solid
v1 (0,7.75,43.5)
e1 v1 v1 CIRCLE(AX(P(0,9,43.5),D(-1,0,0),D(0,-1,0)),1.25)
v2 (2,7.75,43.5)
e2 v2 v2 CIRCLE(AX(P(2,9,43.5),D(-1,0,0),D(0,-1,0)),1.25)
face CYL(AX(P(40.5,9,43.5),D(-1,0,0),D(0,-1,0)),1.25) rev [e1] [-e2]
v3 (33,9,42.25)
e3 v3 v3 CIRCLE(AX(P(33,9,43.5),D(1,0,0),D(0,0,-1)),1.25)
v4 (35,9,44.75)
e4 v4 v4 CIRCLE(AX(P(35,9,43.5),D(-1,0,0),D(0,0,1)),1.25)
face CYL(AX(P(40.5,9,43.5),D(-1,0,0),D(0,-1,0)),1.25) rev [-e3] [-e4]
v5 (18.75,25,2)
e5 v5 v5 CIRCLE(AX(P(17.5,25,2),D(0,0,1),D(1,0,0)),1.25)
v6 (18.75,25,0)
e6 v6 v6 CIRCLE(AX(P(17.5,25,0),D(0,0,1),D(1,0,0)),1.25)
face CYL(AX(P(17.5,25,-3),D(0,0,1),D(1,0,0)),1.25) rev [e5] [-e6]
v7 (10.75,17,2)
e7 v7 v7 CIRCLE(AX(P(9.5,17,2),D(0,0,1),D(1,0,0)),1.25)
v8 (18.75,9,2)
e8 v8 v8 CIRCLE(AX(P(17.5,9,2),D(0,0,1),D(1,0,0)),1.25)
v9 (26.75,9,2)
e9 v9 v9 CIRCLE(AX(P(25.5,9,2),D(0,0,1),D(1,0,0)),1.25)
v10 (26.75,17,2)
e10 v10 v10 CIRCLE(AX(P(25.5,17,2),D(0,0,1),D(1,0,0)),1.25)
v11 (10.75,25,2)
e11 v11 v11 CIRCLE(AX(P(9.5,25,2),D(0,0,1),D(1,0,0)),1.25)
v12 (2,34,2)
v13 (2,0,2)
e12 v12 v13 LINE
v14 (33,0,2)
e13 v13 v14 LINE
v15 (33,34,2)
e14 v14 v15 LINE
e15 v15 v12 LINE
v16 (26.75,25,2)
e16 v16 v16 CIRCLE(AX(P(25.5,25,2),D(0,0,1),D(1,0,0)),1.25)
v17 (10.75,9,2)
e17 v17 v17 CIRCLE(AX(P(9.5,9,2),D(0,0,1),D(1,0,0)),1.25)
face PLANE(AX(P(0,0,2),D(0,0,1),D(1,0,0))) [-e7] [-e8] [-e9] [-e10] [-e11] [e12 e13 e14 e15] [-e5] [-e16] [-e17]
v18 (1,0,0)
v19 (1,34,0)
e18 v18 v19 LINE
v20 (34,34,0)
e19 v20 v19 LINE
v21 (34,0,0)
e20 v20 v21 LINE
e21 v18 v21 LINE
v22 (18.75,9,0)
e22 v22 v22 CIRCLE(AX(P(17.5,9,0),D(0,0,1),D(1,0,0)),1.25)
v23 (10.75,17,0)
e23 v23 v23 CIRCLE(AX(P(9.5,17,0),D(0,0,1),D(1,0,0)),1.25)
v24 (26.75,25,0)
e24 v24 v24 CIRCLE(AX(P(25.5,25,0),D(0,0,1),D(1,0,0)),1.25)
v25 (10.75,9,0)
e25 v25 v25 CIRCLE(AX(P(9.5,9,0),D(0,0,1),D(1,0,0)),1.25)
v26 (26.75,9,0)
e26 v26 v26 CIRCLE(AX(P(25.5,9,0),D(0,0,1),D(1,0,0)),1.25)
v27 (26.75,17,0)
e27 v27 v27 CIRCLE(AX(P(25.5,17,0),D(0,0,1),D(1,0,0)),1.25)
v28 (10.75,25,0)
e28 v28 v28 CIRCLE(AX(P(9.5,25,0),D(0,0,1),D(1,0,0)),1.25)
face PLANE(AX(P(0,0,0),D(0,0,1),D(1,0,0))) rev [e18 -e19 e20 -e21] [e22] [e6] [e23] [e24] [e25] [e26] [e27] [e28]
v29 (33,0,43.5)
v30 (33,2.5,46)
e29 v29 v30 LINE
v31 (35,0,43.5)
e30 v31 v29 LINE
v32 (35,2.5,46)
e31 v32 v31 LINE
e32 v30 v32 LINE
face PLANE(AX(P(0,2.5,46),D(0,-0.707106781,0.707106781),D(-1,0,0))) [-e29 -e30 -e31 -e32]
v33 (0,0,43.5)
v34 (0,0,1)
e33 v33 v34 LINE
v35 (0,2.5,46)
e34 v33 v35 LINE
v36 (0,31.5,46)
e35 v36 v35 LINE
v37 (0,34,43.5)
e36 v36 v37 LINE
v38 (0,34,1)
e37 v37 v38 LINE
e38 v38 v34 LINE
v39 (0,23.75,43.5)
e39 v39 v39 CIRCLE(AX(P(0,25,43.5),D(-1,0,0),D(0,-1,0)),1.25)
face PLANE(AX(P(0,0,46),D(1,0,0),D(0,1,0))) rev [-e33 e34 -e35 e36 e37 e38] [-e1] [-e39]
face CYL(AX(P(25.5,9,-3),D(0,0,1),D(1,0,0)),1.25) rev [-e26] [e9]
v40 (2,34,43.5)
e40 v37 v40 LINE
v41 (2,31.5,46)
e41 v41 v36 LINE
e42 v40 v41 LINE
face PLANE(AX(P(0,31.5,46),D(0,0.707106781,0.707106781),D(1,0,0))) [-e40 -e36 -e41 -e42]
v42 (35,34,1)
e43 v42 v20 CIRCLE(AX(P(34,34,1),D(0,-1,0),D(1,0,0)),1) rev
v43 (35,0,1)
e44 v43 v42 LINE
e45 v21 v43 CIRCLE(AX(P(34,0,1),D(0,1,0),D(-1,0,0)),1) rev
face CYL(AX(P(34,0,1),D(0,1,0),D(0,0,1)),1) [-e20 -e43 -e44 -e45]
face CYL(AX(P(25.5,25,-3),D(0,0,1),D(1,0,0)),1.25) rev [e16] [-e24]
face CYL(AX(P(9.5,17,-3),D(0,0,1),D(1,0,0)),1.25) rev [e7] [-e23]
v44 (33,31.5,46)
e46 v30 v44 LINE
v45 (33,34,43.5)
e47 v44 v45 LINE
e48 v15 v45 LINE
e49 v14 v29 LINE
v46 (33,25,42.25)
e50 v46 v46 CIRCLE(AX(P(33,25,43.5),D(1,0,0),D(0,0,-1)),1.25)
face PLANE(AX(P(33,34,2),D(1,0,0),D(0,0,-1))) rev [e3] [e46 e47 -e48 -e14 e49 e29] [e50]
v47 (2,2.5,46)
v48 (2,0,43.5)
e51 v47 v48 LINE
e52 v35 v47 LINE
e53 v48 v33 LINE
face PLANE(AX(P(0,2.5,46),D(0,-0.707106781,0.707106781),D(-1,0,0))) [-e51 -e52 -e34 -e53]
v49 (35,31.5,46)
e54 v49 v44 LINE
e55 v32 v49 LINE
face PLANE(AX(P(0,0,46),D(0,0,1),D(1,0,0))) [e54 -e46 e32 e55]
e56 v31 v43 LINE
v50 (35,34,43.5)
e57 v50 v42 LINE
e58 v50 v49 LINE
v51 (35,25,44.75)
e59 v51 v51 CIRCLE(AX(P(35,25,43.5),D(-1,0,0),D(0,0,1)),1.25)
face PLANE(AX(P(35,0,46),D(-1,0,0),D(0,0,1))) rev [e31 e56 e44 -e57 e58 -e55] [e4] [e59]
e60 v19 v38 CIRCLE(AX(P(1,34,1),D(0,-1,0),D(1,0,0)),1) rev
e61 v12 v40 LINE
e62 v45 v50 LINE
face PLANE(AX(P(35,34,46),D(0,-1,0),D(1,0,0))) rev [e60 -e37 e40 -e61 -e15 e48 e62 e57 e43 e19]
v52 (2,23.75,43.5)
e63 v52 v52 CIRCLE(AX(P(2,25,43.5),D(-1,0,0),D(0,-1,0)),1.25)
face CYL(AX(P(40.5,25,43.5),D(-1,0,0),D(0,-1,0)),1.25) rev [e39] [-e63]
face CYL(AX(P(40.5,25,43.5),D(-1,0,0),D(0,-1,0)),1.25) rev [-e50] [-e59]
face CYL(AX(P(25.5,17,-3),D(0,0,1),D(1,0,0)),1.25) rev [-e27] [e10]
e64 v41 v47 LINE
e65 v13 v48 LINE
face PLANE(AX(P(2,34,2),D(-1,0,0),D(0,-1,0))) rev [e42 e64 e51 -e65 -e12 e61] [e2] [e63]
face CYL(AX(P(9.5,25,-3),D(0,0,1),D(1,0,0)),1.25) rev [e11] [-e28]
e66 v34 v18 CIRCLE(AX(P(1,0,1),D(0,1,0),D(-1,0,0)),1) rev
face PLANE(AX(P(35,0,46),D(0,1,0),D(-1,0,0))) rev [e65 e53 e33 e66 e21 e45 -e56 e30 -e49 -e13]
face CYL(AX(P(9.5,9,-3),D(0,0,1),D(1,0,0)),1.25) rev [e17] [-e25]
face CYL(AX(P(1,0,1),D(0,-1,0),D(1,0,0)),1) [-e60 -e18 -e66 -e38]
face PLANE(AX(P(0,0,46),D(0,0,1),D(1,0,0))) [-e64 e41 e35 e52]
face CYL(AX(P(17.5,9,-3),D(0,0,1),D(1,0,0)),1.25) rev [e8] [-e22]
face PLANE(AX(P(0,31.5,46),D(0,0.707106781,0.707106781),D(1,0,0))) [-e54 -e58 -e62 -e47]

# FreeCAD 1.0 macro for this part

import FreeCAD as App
import Part
import Sketcher


def edges_at(feature, points):
    """Names of the edges that pass closest to the given points."""
    edges = feature.Shape.Edges
    near = lambda p: min(range(len(edges)), key=lambda i: edges[i].distToShape(Part.Vertex(*p))[0])
    return sorted({f"Edge{near(p) + 1}" for p in points})

doc = App.newDocument("Part")
body = doc.addObject("PartDesign::Body", "Body")

sketch1 = doc.addObject("Sketcher::SketchObject", "Sketch")
body.addObject(sketch1)
sketch1.AttachmentSupport = (doc.XY_Plane, [""])
sketch1.MapMode = "FlatFace"
sketch1.addGeometry(Part.LineSegment(App.Vector(0, 34, 0), App.Vector(0, 0, 0)), False)
sketch1.addGeometry(Part.LineSegment(App.Vector(0, 0, 0), App.Vector(35, 0, 0)), False)
sketch1.addGeometry(Part.LineSegment(App.Vector(35, 0, 0), App.Vector(35, 34, 0)), False)
sketch1.addGeometry(Part.LineSegment(App.Vector(35, 34, 0), App.Vector(0, 34, 0)), False)
sketch1.addConstraint(Sketcher.Constraint("Coincident", 0, 2, 1, 1))
sketch1.addConstraint(Sketcher.Constraint("Coincident", 1, 2, 2, 1))
sketch1.addConstraint(Sketcher.Constraint("Coincident", 2, 2, 3, 1))
sketch1.addConstraint(Sketcher.Constraint("Coincident", 3, 2, 0, 1))
sketch1.addConstraint(Sketcher.Constraint("Vertical", 0))
sketch1.addConstraint(Sketcher.Constraint("Horizontal", 1))
sketch1.addConstraint(Sketcher.Constraint("Vertical", 2))
sketch1.addConstraint(Sketcher.Constraint("Horizontal", 3))
sketch1.addConstraint(Sketcher.Constraint("Coincident", 0, 2, -1, 1))
sketch1.addConstraint(Sketcher.Constraint("DistanceX", 1, 1, 1, 2, 35.0))
sketch1.addConstraint(Sketcher.Constraint("DistanceY", 0, 2, 0, 1, 34.0))
pad1 = doc.addObject("PartDesign::Pad", "Pad")
body.addObject(pad1)
pad1.Profile = sketch1
pad1.Length = 46

sketch2 = doc.addObject("Sketcher::SketchObject", "Sketch001")
body.addObject(sketch2)
sketch2.AttachmentSupport = (doc.XY_Plane, [""])
sketch2.MapMode = "FlatFace"
sketch2.AttachmentOffset = App.Placement(App.Vector(0, 0, 46), App.Rotation())
sketch2.addGeometry(Part.LineSegment(App.Vector(2, 34, 0), App.Vector(2, 0, 0)), False)
sketch2.addGeometry(Part.LineSegment(App.Vector(2, 0, 0), App.Vector(33, 0, 0)), False)
sketch2.addGeometry(Part.LineSegment(App.Vector(33, 0, 0), App.Vector(33, 34, 0)), False)
sketch2.addGeometry(Part.LineSegment(App.Vector(33, 34, 0), App.Vector(2, 34, 0)), False)
sketch2.addConstraint(Sketcher.Constraint("Coincident", 0, 2, 1, 1))
sketch2.addConstraint(Sketcher.Constraint("Coincident", 1, 2, 2, 1))
sketch2.addConstraint(Sketcher.Constraint("Coincident", 2, 2, 3, 1))
sketch2.addConstraint(Sketcher.Constraint("Coincident", 3, 2, 0, 1))
sketch2.addConstraint(Sketcher.Constraint("Vertical", 0))
sketch2.addConstraint(Sketcher.Constraint("Horizontal", 1))
sketch2.addConstraint(Sketcher.Constraint("Vertical", 2))
sketch2.addConstraint(Sketcher.Constraint("Horizontal", 3))
sketch2.addConstraint(Sketcher.Constraint("PointOnObject", 0, 2, -1))
sketch2.addConstraint(Sketcher.Constraint("DistanceX", 1, 1, 1, 2, 31.0))
sketch2.addConstraint(Sketcher.Constraint("DistanceY", 0, 2, 0, 1, 34.0))
sketch2.addConstraint(Sketcher.Constraint("DistanceX", -1, 1, 0, 2, 2.0))
pocket1 = doc.addObject("PartDesign::Pocket", "Pocket")
body.addObject(pocket1)
pocket1.Profile = sketch2
pocket1.Length = 44
doc.recompute()

fillet = doc.addObject("PartDesign::Fillet", "Fillet")
body.addObject(fillet)
fillet.Base = (pocket1, edges_at(pocket1, [(0, 17, 0), (35, 17, 0)]))
fillet.Radius = 1
doc.recompute()

chamfer = doc.addObject("PartDesign::Chamfer", "Chamfer")
body.addObject(chamfer)
chamfer.Base = (fillet, edges_at(fillet, [
    (1, 0, 46),
    (1, 34, 46),
    (34, 0, 46),
    (34, 34, 46),
]))
chamfer.Size = 2.5

sketch3 = doc.addObject("Sketcher::SketchObject", "Sketch002")
body.addObject(sketch3)
sketch3.AttachmentSupport = (doc.YZ_Plane, [""])
sketch3.MapMode = "FlatFace"
sketch3.addGeometry(Part.Circle(App.Vector(25, 43.5, 0), App.Vector(0, 0, 1), 1.2), False)
sketch3.addGeometry(Part.Circle(App.Vector(9, 43.5, 0), App.Vector(0, 0, 1), 1.2), False)
sketch3.addConstraint(Sketcher.Constraint("Equal", 0, 1))
sketch3.addConstraint(Sketcher.Constraint("Horizontal", 0, 3, 1, 3))
sketch3.addConstraint(Sketcher.Constraint("Diameter", 0, 2.5))
sketch3.addConstraint(Sketcher.Constraint("DistanceX", -1, 1, 0, 3, 25.0))
sketch3.addConstraint(Sketcher.Constraint("DistanceX", -1, 1, 1, 3, 9.0))
sketch3.addConstraint(Sketcher.Constraint("DistanceY", -1, 1, 0, 3, 43.5))
pocket2 = doc.addObject("PartDesign::Pocket", "Pocket001")
body.addObject(pocket2)
pocket2.Profile = sketch3
pocket2.Length = 40.5
pocket2.Reversed = True

sketch4 = doc.addObject("Sketcher::SketchObject", "Sketch003")
body.addObject(sketch4)
sketch4.AttachmentSupport = (doc.XY_Plane, [""])
sketch4.MapMode = "FlatFace"
sketch4.AttachmentOffset = App.Placement(App.Vector(0, 0, 2), App.Rotation())
sketch4.addGeometry(Part.Circle(App.Vector(9.5, 9, 0), App.Vector(0, 0, 1), 1.2), False)
sketch4.addGeometry(Part.Circle(App.Vector(17.5, 9, 0), App.Vector(0, 0, 1), 1.2), False)
sketch4.addGeometry(Part.Circle(App.Vector(25.5, 9, 0), App.Vector(0, 0, 1), 1.2), False)
sketch4.addGeometry(Part.Circle(App.Vector(25.5, 17, 0), App.Vector(0, 0, 1), 1.2), False)
sketch4.addGeometry(Part.Circle(App.Vector(17.5, 25, 0), App.Vector(0, 0, 1), 1.2), False)
sketch4.addGeometry(Part.Circle(App.Vector(25.5, 25, 0), App.Vector(0, 0, 1), 1.2), False)
sketch4.addGeometry(Part.Circle(App.Vector(9.5, 17, 0), App.Vector(0, 0, 1), 1.2), False)
sketch4.addGeometry(Part.Circle(App.Vector(9.5, 25, 0), App.Vector(0, 0, 1), 1.2), False)
sketch4.addConstraint(Sketcher.Constraint("Equal", 0, 1))
sketch4.addConstraint(Sketcher.Constraint("Equal", 1, 2))
sketch4.addConstraint(Sketcher.Constraint("Equal", 2, 3))
sketch4.addConstraint(Sketcher.Constraint("Equal", 3, 4))
sketch4.addConstraint(Sketcher.Constraint("Equal", 4, 5))
sketch4.addConstraint(Sketcher.Constraint("Equal", 5, 6))
sketch4.addConstraint(Sketcher.Constraint("Equal", 6, 7))
sketch4.addConstraint(Sketcher.Constraint("Horizontal", 0, 3, 1, 3))
sketch4.addConstraint(Sketcher.Constraint("Horizontal", 1, 3, 2, 3))
sketch4.addConstraint(Sketcher.Constraint("Horizontal", 4, 3, 5, 3))
sketch4.addConstraint(Sketcher.Constraint("Horizontal", 3, 3, 6, 3))
sketch4.addConstraint(Sketcher.Constraint("Horizontal", 5, 3, 7, 3))
sketch4.addConstraint(Sketcher.Constraint("Vertical", 2, 3, 3, 3))
sketch4.addConstraint(Sketcher.Constraint("Vertical", 1, 3, 4, 3))
sketch4.addConstraint(Sketcher.Constraint("Vertical", 3, 3, 5, 3))
sketch4.addConstraint(Sketcher.Constraint("Vertical", 0, 3, 6, 3))
sketch4.addConstraint(Sketcher.Constraint("Vertical", 6, 3, 7, 3))
sketch4.addConstraint(Sketcher.Constraint("Diameter", 0, 2.5))
sketch4.addConstraint(Sketcher.Constraint("DistanceY", -1, 1, 0, 3, 9.0))
sketch4.addConstraint(Sketcher.Constraint("DistanceY", -1, 1, 3, 3, 17.0))
sketch4.addConstraint(Sketcher.Constraint("DistanceY", -1, 1, 4, 3, 25.0))
sketch4.addConstraint(Sketcher.Constraint("DistanceX", 0, 3, 1, 3, 8.0))
sketch4.addConstraint(Sketcher.Constraint("DistanceX", 1, 3, 2, 3, 8.0))
sketch4.addConstraint(Sketcher.Constraint("DistanceX", -1, 1, 0, 3, 9.5))
pocket3 = doc.addObject("PartDesign::Pocket", "Pocket002")
body.addObject(pocket3)
pocket3.Profile = sketch4
pocket3.Length = 5

doc.recompute()
